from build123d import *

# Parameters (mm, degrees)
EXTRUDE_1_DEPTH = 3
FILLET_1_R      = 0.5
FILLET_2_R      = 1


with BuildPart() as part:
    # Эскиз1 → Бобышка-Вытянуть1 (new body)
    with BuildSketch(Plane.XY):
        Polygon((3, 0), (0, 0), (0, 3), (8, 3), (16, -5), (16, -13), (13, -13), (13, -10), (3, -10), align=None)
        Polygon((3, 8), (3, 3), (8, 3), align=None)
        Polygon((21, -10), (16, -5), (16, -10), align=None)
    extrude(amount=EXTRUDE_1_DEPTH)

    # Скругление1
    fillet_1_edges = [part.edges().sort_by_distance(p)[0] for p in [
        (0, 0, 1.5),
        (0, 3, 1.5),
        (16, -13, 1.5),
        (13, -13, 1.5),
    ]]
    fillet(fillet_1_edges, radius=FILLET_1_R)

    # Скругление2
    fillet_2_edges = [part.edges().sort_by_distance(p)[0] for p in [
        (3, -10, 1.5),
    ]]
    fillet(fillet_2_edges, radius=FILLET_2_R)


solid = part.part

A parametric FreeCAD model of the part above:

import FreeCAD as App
import Part
import Sketcher
Q = App.Units.Quantity


def edges_at(feature, points):
    """Names of the edges that pass closest to the given points."""
    edges = feature.Shape.Edges
    near = lambda p: min(range(len(edges)), key=lambda i: edges[i].distToShape(Part.Vertex(*p))[0])
    return sorted({f"Edge{near(p) + 1}" for p in points})

doc = App.newDocument("Part")
body = doc.addObject("PartDesign::Body", "Body")

# Sketch on XY plane
sketch1 = body.newObject("Sketcher::SketchObject", "Sketch")
sketch1.AttachmentSupport = (doc.getObject("XY_Plane"), [""])
sketch1.MapMode = "FlatFace"
sketch1.addGeometry([
    Part.LineSegment(App.Vector(0, 0, 0), App.Vector(3, 0, 0)),  # 0
    Part.LineSegment(App.Vector(3, 0, 0), App.Vector(3, -10, 0)),  # 1
    Part.LineSegment(App.Vector(3, -10, 0), App.Vector(13, -10, 0)),  # 2
    Part.LineSegment(App.Vector(13, -10, 0), App.Vector(13, -13, 0)),  # 3
    Part.LineSegment(App.Vector(13, -13, 0), App.Vector(16, -13, 0)),  # 4
    Part.LineSegment(App.Vector(16, -13, 0), App.Vector(16, -10, 0)),  # 5
    Part.LineSegment(App.Vector(16, -10, 0), App.Vector(21, -10, 0)),  # 6
    Part.LineSegment(App.Vector(21, -10, 0), App.Vector(3, 8, 0)),  # 7
    Part.LineSegment(App.Vector(3, 8, 0), App.Vector(3, 3, 0)),  # 8
    Part.LineSegment(App.Vector(3, 3, 0), App.Vector(0, 3, 0)),  # 9
    Part.LineSegment(App.Vector(0, 3, 0), App.Vector(0, 0, 0)),  # 10
], False)
sketch1.addConstraint([
    Sketcher.Constraint("Coincident", 0, 2, 1, 1),
    Sketcher.Constraint("Coincident", 1, 2, 2, 1),
    Sketcher.Constraint("Coincident", 2, 2, 3, 1),
    Sketcher.Constraint("Coincident", 3, 2, 4, 1),
    Sketcher.Constraint("Coincident", 4, 2, 5, 1),
    Sketcher.Constraint("Coincident", 5, 2, 6, 1),
    Sketcher.Constraint("Coincident", 6, 2, 7, 1),
    Sketcher.Constraint("Coincident", 7, 2, 8, 1),
    Sketcher.Constraint("Coincident", 8, 2, 9, 1),
    Sketcher.Constraint("Coincident", 9, 2, 10, 1),
    Sketcher.Constraint("Coincident", 10, 2, 0, 1),
    Sketcher.Constraint("Horizontal", 0),
    Sketcher.Constraint("Vertical", 1),
    Sketcher.Constraint("Horizontal", 2),
    Sketcher.Constraint("Vertical", 3),
    Sketcher.Constraint("Horizontal", 4),
    Sketcher.Constraint("Vertical", 5),
    Sketcher.Constraint("Horizontal", 6),
    Sketcher.Constraint("Vertical", 8),
    Sketcher.Constraint("Horizontal", 9),
    Sketcher.Constraint("Vertical", 10),
    Sketcher.Constraint("Coincident", 10, 2, -1, 1),
    Sketcher.Constraint("Horizontal", 2, 2, 5, 2),
    Sketcher.Constraint("Vertical", 1, 2, 7, 2),
    Sketcher.Constraint("Equal", 0, 4),
    Sketcher.Constraint("Equal", 2, 1),
    Sketcher.Constraint("Equal", 9, 3),
    Sketcher.Constraint("Equal", 6, 8),
    Sketcher.Constraint("Equal", 5, 10),
    Sketcher.Constraint("DistanceX", 0, 1, 0, 2, Q("3 mm")),
    Sketcher.Constraint("DistanceX", 2, 1, 2, 2, Q("10 mm")),
    Sketcher.Constraint("DistanceX", 6, 1, 6, 2, Q("5 mm")),
])
pad1 = body.newObject("PartDesign::Pad", "Pad")
pad1.Profile = sketch1
pad1.Length = 3
doc.recompute()

fillet = body.newObject("PartDesign::Fillet", "Fillet")
fillet.Base = (pad1, edges_at(pad1, [
    (0, 0, 1.5),
    (0, 3, 1.5),
    (16, -13, 1.5),
    (13, -13, 1.5),
]))
fillet.Radius = 0.5
doc.recompute()

fillet2 = body.newObject("PartDesign::Fillet", "Fillet001")
fillet2.Base = (fillet, edges_at(fillet, [(3, -10, 1.5)]))
fillet2.Radius = 1

doc.recompute()
